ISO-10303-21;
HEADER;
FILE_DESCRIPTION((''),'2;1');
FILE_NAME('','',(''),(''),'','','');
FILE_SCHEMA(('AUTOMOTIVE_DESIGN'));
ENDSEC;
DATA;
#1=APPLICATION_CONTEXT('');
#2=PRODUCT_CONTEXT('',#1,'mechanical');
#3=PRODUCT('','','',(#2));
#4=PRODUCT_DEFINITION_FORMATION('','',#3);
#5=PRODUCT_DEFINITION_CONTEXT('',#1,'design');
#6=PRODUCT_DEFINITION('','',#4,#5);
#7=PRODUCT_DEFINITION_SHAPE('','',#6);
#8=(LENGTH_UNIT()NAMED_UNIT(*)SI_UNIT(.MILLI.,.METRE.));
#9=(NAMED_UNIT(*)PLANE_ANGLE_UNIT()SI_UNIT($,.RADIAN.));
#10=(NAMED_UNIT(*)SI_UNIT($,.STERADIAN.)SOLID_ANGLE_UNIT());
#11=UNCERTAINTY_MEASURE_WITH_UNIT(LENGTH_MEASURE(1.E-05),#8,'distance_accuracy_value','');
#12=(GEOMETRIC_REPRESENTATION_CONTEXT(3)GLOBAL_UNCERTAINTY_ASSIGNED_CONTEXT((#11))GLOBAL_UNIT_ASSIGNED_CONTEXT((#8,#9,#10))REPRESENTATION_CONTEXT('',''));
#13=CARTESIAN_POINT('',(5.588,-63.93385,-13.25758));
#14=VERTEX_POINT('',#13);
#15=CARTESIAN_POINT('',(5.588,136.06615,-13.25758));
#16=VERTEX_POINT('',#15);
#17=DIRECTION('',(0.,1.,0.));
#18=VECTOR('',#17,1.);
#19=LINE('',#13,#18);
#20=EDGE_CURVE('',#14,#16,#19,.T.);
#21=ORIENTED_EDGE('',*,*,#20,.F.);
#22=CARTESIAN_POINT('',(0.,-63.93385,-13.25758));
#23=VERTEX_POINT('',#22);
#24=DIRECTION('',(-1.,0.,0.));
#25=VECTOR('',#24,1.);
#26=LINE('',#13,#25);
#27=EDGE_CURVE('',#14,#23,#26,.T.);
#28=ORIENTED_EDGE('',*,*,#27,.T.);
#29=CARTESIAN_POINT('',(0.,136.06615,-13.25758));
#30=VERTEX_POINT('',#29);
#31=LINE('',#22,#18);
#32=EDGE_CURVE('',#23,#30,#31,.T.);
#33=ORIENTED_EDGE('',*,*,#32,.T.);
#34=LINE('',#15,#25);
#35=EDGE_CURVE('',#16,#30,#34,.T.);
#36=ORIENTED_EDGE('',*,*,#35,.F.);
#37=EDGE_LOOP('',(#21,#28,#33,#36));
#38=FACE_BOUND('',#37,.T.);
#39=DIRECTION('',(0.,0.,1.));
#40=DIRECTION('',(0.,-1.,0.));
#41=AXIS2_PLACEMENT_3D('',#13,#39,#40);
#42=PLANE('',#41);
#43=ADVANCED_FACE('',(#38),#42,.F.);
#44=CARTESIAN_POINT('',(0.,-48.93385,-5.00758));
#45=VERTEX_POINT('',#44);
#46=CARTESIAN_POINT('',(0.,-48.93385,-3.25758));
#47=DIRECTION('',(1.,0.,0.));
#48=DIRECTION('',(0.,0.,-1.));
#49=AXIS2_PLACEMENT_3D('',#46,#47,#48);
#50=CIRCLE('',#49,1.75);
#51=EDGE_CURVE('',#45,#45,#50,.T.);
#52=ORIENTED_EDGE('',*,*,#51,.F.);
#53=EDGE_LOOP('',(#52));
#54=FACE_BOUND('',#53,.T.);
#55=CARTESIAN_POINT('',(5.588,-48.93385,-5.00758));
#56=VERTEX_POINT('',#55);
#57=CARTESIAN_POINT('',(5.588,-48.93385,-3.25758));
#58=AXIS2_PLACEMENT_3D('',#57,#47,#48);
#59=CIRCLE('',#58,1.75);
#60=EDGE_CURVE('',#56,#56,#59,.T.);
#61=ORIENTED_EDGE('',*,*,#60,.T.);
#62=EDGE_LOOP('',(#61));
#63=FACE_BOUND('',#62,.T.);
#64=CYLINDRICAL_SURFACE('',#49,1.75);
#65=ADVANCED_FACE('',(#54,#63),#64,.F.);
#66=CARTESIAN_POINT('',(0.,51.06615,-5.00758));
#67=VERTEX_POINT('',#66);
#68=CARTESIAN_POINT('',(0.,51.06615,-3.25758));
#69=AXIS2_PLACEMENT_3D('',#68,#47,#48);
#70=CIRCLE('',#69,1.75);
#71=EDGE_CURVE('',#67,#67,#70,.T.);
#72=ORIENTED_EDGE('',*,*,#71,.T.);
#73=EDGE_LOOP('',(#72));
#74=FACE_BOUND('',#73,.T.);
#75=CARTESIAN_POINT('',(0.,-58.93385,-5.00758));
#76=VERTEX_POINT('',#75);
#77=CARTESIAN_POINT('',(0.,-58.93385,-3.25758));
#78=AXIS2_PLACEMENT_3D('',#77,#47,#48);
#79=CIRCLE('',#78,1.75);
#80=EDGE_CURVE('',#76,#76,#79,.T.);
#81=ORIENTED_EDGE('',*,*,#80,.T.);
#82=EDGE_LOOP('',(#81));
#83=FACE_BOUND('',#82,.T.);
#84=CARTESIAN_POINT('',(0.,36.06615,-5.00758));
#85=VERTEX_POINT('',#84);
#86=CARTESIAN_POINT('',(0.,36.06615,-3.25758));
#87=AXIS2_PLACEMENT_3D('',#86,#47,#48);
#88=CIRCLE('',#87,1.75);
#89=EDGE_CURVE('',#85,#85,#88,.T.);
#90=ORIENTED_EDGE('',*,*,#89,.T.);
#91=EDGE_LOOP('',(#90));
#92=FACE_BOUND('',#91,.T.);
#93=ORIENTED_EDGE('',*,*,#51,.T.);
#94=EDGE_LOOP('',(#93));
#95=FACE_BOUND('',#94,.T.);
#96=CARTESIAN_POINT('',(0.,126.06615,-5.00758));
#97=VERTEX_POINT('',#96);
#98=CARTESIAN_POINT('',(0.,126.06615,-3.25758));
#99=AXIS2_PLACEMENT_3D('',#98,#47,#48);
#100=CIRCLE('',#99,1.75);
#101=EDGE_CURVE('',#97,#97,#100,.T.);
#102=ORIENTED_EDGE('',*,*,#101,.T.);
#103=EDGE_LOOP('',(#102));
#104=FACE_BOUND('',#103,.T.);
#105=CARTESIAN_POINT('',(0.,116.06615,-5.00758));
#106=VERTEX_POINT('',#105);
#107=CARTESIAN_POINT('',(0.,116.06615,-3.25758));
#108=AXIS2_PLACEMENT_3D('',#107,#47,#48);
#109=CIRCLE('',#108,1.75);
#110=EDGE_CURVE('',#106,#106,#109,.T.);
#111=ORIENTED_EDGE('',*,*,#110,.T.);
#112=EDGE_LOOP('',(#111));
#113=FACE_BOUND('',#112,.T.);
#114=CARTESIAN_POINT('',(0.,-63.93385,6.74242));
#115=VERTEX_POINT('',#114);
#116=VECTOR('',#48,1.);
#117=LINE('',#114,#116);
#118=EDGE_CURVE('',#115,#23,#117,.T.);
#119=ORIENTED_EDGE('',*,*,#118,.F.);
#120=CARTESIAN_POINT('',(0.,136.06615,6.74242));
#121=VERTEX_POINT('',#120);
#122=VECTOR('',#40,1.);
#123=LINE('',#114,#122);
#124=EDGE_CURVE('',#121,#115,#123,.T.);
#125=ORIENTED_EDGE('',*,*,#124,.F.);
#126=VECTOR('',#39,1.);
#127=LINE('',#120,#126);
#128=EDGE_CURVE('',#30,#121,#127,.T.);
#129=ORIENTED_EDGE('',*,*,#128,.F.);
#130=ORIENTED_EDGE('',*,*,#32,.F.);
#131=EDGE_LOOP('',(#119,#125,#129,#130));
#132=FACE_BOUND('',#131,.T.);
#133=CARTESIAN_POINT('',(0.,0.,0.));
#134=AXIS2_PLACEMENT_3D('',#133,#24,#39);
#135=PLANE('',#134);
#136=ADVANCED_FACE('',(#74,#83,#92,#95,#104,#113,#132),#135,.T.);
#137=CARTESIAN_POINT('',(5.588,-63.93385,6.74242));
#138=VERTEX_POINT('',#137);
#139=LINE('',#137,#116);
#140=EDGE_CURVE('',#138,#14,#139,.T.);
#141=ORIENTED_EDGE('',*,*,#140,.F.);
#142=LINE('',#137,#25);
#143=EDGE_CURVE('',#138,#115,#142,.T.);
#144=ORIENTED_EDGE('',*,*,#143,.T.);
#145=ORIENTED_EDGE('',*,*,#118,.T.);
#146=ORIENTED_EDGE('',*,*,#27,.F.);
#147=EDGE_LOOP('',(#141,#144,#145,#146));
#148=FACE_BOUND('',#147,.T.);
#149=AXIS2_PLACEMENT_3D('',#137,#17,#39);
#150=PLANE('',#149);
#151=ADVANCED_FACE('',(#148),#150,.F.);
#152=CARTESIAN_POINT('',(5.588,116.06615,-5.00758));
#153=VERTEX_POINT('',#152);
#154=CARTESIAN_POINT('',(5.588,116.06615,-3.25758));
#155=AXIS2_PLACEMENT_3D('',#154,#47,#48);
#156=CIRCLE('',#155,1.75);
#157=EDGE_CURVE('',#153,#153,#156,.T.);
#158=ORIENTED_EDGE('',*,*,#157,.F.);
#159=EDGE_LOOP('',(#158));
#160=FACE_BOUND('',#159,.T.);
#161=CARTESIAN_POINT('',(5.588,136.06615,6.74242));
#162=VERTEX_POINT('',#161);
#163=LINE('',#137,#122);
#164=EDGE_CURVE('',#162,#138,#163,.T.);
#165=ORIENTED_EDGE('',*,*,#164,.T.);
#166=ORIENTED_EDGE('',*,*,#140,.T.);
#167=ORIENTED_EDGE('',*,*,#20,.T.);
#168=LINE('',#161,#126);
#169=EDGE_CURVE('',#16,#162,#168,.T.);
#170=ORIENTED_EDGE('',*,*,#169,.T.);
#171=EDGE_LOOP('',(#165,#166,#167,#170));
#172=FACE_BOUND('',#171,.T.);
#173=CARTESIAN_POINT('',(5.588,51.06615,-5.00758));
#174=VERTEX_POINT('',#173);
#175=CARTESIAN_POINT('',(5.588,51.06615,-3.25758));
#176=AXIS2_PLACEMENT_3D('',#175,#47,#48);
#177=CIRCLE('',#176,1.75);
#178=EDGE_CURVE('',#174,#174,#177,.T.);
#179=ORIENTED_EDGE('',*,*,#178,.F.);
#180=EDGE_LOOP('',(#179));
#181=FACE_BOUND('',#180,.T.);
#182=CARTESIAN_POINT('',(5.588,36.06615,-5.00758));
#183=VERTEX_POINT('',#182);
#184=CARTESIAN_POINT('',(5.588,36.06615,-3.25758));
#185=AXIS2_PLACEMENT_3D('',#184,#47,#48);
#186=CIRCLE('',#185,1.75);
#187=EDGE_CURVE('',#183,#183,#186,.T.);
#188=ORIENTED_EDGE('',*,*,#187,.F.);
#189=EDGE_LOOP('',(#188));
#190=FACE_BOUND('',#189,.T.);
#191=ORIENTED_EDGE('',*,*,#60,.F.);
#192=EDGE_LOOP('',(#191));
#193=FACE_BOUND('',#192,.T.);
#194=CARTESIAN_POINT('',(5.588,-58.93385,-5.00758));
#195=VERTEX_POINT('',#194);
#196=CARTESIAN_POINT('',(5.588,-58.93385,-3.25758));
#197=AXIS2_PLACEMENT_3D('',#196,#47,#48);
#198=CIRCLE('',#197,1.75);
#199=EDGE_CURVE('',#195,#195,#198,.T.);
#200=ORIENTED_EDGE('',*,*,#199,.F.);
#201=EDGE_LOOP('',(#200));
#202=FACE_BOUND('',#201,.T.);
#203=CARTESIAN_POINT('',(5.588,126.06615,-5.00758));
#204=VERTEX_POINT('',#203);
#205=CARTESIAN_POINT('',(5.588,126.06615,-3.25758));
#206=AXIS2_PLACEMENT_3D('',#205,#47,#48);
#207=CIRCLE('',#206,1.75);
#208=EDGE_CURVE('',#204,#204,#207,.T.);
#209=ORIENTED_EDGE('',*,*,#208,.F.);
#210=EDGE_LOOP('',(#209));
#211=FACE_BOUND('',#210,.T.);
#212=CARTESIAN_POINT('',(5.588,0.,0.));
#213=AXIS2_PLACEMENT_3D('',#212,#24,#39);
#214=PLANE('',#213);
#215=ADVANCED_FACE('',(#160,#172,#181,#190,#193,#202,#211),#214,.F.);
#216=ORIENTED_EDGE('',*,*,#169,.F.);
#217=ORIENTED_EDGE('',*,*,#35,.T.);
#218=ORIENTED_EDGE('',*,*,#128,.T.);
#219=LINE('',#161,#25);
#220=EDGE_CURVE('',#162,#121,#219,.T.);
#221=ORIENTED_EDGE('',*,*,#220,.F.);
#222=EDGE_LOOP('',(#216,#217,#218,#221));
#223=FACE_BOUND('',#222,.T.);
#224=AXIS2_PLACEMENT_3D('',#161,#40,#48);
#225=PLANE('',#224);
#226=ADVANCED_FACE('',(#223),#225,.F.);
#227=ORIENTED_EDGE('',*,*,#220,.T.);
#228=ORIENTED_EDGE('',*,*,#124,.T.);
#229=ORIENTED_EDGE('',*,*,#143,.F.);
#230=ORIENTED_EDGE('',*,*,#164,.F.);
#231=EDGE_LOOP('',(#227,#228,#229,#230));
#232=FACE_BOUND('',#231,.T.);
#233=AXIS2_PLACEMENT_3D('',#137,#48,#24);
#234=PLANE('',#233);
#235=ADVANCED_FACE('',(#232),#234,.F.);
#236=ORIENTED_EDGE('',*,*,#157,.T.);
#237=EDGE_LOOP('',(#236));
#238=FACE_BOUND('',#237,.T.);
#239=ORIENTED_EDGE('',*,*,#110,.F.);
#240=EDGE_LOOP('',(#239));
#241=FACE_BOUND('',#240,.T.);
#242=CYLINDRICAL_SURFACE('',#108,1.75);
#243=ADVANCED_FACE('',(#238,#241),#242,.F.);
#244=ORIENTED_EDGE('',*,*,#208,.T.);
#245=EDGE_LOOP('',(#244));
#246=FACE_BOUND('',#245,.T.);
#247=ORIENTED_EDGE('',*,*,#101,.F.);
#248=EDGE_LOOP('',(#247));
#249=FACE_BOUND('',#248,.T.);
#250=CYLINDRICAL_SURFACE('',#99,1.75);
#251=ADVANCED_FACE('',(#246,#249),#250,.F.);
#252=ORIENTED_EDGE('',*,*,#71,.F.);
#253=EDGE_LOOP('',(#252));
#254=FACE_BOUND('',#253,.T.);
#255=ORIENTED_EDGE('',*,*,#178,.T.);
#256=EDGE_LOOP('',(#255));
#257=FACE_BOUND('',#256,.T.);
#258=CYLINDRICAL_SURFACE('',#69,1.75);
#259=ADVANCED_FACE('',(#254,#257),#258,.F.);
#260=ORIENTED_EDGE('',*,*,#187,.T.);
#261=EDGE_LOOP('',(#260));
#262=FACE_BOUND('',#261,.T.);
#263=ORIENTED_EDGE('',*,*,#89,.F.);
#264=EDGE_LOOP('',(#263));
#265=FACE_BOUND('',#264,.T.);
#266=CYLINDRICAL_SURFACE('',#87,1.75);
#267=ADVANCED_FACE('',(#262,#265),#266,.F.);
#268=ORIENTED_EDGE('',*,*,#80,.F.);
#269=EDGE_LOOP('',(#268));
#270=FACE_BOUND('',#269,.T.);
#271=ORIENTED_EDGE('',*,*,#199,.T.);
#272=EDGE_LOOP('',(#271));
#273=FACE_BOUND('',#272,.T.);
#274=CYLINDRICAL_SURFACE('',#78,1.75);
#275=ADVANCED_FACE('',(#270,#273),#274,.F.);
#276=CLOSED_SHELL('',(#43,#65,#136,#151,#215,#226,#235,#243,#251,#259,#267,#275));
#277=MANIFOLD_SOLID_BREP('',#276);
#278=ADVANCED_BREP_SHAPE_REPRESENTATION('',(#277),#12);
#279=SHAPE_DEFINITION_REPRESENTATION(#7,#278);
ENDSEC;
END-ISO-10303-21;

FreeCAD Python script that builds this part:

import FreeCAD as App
import Part
import Sketcher
from FreeCAD import Vector


def add_polygon(sketch, points):
    """Adds a closed chain of lines whose ends are joined by coincident constraints."""
    first, n = sketch.GeometryCount, len(points)
    for a, b in zip(points, points[1:] + points[:1]):
        sketch.addGeometry(Part.LineSegment(App.Vector(*a, 0), App.Vector(*b, 0)), False)
    for i in range(n):
        sketch.addConstraint(Sketcher.Constraint("Coincident", first + i, 2, first + (i + 1) % n, 1))

doc = App.newDocument("Part")
body = doc.addObject("PartDesign::Body", "Body")

# Sketch on YZ plane
sketch1 = body.newObject("Sketcher::SketchObject", "Sketch")
sketch1.AttachmentSupport = (doc.getObject("YZ_Plane"), [""])
sketch1.MapMode = "FlatFace"
add_polygon(sketch1, [(136.06615, 6.74242), (-63.93385, 6.74242), (-63.93385, -13.25758), (136.06615, -13.25758)])  # lines 0-3
sketch1.addConstraint([
    Sketcher.Constraint("Horizontal", 0),
    Sketcher.Constraint("Vertical", 1),
    Sketcher.Constraint("Horizontal", 2),
    Sketcher.Constraint("Vertical", 3),
    Sketcher.Constraint("DistanceX", 0, 2, 0, 1, 200.0),
    Sketcher.Constraint("DistanceY", 1, 2, 1, 1, 20.0),
    Sketcher.Constraint("DistanceX", 0, 2, -1, 1, 63.93385),
    Sketcher.Constraint("DistanceY", -1, 1, 0, 2, 6.74242),
])
pad1 = body.newObject("PartDesign::Pad", "Pad")
pad1.Profile = sketch1
pad1.Length = 5.588

# Sketch on YZ plane
sketch2 = body.newObject("Sketcher::SketchObject", "Sketch001")
sketch2.AttachmentSupport = (doc.getObject("YZ_Plane"), [""])
sketch2.MapMode = "FlatFace"
sketch2.AttachmentOffset = App.Placement(Vector(0, 0, 5.588), App.Rotation())
sketch2.addGeometry([
    Part.Circle(Vector(-58.93385, -3.25758, 0), Vector(0, 0, 1), 1.75),
    Part.Circle(Vector(-48.93385, -3.25758, 0), Vector(0, 0, 1), 1.75),
    Part.Circle(Vector(116.06615, -3.25758, 0), Vector(0, 0, 1), 1.75),
    Part.Circle(Vector(126.06615, -3.25758, 0), Vector(0, 0, 1), 1.75),
], False)
sketch2.addConstraint([
    Sketcher.Constraint("Equal", 0, 1),
    Sketcher.Constraint("Equal", 1, 2),
    Sketcher.Constraint("Equal", 2, 3),
    Sketcher.Constraint("Horizontal", 0, 3, 1, 3),
    Sketcher.Constraint("Horizontal", 1, 3, 2, 3),
    Sketcher.Constraint("Horizontal", 2, 3, 3, 3),
    Sketcher.Constraint("Diameter", 0, 3.5),
    Sketcher.Constraint("DistanceX", 0, 3, 1, 3, 10.0),
    Sketcher.Constraint("DistanceX", 1, 3, 2, 3, 165.0),
    Sketcher.Constraint("DistanceX", 2, 3, 3, 3, 10.0),
    Sketcher.Constraint("DistanceX", 0, 3, -1, 1, 58.93385),
    Sketcher.Constraint("DistanceY", 0, 3, -1, 1, 3.25758),
])
pocket1 = body.newObject("PartDesign::Pocket", "Pocket")
pocket1.Profile = sketch2
pocket1.Type = "ThroughAll"

# Sketch on YZ plane
sketch3 = body.newObject("Sketcher::SketchObject", "Sketch002")
sketch3.AttachmentSupport = (doc.getObject("YZ_Plane"), [""])
sketch3.MapMode = "FlatFace"
sketch3.AttachmentOffset = App.Placement(Vector(0, 0, 5.588), App.Rotation())
sketch3.addGeometry([
    Part.Circle(Vector(36.06615, -3.25758, 0), Vector(0, 0, 1), 1.75),
    Part.Circle(Vector(51.06615, -3.25758, 0), Vector(0, 0, 1), 1.75),
], False)
sketch3.addConstraint([
    Sketcher.Constraint("Equal", 0, 1),
    Sketcher.Constraint("Horizontal", 0, 3, 1, 3),
    Sketcher.Constraint("Diameter", 0, 3.5),
    Sketcher.Constraint("DistanceX", 0, 3, 1, 3, 15.0),
    Sketcher.Constraint("DistanceX", -1, 1, 0, 3, 36.06615),
    Sketcher.Constraint("DistanceY", 0, 3, -1, 1, 3.25758),
])
pocket2 = body.newObject("PartDesign::Pocket", "Pocket001")
pocket2.Profile = sketch3
pocket2.Type = "ThroughAll"

doc.recompute()
